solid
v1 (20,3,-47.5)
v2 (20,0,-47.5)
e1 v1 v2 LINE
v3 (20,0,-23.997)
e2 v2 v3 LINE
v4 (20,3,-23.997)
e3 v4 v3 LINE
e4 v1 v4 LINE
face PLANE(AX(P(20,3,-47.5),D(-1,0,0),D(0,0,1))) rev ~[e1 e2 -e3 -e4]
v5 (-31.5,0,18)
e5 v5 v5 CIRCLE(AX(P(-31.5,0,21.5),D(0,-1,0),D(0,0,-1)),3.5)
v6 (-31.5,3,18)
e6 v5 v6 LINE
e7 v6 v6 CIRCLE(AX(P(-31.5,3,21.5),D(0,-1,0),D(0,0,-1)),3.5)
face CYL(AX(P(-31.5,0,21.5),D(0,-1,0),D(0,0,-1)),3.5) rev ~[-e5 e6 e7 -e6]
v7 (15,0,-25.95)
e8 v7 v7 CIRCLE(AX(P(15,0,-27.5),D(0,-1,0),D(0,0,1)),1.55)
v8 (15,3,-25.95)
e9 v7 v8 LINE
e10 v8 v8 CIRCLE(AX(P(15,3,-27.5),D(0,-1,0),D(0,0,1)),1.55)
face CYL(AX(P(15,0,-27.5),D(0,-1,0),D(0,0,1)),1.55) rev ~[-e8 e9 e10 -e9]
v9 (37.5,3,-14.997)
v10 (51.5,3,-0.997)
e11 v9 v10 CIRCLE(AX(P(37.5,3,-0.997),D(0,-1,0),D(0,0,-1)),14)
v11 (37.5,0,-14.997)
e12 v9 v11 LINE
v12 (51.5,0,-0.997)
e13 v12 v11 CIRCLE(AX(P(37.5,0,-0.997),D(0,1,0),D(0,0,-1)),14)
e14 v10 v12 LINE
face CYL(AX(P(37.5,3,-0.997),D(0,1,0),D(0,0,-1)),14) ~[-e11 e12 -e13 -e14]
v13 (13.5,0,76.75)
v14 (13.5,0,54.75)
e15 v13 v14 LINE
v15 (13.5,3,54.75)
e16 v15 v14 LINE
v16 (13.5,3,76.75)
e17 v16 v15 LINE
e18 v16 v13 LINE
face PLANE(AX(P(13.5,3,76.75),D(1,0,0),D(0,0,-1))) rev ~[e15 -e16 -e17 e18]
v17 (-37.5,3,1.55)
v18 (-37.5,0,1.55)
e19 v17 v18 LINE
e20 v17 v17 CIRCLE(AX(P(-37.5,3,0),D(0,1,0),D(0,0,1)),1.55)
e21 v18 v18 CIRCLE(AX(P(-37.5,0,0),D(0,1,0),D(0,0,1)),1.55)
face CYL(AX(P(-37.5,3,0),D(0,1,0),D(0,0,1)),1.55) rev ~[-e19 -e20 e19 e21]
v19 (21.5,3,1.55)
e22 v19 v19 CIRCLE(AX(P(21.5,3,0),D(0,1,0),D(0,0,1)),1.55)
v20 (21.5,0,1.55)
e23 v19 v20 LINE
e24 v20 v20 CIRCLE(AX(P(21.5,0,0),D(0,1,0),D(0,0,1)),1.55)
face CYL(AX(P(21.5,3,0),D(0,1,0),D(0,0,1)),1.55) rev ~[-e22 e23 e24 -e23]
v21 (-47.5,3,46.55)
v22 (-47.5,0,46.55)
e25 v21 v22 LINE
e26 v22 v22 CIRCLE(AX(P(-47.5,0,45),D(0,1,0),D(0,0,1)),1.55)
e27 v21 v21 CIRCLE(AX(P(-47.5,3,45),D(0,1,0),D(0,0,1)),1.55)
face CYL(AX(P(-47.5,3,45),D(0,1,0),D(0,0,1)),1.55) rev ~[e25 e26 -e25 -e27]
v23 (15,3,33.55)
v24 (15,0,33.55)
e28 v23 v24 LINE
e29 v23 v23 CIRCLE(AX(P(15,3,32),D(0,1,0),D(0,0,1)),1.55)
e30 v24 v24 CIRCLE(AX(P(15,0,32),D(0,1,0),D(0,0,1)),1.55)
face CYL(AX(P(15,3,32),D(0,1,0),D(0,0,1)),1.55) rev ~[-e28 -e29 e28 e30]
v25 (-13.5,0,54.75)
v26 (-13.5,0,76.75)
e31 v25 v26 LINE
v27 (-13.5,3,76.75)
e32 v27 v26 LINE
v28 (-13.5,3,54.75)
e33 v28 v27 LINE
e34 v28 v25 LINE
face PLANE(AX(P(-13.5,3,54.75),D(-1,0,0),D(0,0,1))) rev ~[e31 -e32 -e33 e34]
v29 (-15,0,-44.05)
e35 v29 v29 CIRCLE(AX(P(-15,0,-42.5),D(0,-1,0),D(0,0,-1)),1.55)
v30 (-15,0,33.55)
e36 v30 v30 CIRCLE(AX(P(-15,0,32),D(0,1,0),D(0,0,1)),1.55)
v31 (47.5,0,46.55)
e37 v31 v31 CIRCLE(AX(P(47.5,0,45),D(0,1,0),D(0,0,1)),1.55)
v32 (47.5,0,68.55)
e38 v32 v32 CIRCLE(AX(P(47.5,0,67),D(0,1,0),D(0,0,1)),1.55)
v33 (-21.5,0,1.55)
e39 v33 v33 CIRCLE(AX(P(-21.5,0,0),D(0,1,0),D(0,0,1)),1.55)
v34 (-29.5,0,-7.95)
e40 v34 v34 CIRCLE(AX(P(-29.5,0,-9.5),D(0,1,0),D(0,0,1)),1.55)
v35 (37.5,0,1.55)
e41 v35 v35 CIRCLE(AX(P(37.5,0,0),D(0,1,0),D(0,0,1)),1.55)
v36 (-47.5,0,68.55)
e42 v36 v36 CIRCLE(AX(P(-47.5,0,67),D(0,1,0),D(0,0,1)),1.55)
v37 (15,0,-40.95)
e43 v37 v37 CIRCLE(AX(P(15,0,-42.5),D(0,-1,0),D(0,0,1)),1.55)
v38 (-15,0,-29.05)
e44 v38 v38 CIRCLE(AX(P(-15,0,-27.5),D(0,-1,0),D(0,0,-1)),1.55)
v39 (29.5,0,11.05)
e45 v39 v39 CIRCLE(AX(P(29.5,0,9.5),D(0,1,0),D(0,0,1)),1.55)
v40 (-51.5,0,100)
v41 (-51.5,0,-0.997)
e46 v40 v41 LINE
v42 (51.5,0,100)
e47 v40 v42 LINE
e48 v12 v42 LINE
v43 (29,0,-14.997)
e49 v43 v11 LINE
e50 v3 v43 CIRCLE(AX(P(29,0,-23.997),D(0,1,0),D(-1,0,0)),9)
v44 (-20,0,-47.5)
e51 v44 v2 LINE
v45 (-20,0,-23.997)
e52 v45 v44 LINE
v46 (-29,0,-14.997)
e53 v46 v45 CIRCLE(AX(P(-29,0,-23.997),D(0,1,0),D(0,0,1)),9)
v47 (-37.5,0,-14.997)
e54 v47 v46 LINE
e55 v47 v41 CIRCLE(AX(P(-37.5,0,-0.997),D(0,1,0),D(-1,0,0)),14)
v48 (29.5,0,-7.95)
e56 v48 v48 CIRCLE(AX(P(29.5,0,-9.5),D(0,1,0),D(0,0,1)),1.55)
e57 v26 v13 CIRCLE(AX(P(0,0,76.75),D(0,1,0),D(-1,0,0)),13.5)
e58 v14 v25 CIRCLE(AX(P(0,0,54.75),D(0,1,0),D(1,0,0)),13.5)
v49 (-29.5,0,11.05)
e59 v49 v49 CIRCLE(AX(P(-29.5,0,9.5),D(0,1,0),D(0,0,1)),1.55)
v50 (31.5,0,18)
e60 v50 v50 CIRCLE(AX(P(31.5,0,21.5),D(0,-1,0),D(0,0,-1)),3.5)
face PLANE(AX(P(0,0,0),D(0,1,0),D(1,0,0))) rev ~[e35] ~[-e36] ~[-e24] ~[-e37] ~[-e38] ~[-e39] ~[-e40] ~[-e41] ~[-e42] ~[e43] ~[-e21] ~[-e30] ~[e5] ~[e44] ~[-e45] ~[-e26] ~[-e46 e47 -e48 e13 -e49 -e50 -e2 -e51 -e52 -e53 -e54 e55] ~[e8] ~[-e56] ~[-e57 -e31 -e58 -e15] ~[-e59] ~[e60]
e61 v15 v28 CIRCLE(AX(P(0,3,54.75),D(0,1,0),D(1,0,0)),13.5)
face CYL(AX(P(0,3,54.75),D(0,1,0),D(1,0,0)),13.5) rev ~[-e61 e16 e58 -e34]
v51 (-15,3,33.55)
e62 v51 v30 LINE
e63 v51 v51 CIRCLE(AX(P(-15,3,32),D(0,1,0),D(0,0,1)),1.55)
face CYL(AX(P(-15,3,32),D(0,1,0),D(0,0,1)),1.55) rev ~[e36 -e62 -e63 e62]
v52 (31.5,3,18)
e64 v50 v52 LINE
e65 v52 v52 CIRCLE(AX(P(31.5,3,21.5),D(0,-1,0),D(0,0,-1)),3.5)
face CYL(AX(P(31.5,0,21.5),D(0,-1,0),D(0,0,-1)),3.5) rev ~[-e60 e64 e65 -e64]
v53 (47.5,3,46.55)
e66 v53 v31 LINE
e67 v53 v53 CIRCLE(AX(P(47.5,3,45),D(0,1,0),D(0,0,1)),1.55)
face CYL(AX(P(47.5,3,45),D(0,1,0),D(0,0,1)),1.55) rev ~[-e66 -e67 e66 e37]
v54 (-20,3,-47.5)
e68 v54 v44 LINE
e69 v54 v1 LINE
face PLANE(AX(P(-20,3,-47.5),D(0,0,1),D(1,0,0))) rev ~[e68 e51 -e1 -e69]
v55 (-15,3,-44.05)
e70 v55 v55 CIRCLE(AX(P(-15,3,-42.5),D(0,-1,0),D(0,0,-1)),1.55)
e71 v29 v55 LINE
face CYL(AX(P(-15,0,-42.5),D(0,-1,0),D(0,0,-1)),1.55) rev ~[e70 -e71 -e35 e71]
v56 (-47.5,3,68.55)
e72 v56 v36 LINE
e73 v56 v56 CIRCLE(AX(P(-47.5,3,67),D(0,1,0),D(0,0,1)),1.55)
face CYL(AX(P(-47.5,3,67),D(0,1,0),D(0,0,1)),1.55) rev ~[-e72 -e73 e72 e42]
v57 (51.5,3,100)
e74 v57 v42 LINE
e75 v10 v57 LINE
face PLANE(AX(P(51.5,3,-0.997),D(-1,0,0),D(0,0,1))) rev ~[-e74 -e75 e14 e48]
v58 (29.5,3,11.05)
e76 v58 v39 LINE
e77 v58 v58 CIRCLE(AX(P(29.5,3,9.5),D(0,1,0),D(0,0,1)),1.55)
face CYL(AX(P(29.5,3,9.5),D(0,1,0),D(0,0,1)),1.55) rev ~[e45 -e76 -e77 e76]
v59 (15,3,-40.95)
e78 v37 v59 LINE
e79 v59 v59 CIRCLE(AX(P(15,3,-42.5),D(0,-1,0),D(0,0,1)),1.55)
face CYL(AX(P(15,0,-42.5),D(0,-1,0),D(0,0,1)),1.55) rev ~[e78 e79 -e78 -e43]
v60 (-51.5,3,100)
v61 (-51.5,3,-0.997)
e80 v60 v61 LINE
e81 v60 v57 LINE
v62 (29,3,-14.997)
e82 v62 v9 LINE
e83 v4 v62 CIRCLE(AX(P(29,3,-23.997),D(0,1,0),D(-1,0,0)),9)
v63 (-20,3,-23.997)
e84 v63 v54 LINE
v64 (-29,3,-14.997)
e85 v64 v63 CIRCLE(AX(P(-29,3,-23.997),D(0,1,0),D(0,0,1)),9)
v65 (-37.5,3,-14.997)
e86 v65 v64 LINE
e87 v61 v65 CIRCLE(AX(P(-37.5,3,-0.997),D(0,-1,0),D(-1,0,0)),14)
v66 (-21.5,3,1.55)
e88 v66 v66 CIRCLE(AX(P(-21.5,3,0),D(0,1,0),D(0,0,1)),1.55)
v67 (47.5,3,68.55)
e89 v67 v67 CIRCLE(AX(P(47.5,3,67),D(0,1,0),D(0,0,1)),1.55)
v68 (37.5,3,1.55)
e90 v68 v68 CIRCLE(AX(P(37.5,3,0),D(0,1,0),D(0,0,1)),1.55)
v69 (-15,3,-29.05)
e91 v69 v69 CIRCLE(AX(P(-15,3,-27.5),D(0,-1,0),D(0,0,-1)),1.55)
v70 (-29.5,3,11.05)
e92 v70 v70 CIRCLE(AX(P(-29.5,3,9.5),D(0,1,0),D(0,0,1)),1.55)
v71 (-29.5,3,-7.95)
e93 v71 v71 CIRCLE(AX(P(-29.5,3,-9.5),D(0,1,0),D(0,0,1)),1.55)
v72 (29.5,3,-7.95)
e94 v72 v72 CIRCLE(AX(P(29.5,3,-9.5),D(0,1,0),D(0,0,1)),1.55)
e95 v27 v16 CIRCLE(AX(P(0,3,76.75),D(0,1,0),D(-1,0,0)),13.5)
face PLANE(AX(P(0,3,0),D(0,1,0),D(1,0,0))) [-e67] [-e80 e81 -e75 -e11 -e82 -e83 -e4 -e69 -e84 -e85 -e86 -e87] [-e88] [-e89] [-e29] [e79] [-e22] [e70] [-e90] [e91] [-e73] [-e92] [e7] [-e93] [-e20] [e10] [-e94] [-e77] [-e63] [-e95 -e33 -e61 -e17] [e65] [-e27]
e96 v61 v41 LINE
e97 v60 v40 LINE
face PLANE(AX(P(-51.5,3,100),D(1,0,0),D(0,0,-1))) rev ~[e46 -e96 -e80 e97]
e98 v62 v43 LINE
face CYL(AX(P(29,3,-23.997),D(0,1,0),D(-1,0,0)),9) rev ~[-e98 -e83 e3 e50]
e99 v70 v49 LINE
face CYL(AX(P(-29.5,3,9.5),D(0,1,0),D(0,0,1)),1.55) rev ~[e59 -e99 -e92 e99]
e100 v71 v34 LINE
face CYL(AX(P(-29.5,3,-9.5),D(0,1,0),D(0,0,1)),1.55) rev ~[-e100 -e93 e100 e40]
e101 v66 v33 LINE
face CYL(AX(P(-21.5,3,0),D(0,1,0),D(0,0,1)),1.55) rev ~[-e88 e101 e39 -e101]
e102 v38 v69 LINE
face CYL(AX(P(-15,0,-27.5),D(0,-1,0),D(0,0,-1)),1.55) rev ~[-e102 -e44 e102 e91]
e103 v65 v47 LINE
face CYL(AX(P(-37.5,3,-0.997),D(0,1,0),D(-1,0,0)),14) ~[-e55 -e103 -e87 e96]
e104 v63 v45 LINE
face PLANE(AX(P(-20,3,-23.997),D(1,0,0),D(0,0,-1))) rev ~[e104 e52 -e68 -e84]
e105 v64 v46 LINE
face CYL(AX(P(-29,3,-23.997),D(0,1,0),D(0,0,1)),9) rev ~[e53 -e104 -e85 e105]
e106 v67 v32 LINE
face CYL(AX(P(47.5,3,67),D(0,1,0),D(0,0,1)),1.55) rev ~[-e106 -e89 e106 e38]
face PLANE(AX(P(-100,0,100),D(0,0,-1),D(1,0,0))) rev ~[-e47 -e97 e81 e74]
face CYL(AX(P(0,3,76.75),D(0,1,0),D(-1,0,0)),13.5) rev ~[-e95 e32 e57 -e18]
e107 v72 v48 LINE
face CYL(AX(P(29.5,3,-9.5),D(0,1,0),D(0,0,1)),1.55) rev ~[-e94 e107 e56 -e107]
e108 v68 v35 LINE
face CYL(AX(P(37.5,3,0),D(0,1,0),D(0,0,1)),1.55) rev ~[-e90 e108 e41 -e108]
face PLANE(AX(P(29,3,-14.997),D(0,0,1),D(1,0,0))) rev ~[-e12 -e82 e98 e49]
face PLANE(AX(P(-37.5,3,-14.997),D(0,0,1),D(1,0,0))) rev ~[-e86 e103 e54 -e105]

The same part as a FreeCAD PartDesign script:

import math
import FreeCAD as App
import Part
import Sketcher

V = App.Vector
Q = App.Units.Quantity


def add_polygon(sketch, points):
    """Adds a closed chain of lines whose ends are joined by coincident constraints."""
    first, n = sketch.GeometryCount, len(points)
    for a, b in zip(points, points[1:] + points[:1]):
        sketch.addGeometry(Part.LineSegment(App.Vector(*a, 0), App.Vector(*b, 0)), False)
    for i in range(n):
        sketch.addConstraint(Sketcher.Constraint("Coincident", first + i, 2, first + (i + 1) % n, 1))

doc = App.newDocument("Part")
params = doc.addObject("Spreadsheet::Sheet", "Params")
for row, (alias, value) in enumerate([
    ("sketch1_width", "200 mm"),
    ("pad1_length", "3 mm"),
    ("sketch2_diameter", "3.1 mm"),
    ("pocket1_length", "10 mm"),
    ("sketch3_radius", "14 mm"),
    ("sketch3_radius2", "9 mm"),
    ("sketch3_width", "40 mm"),
    ("sketch3_width2", "200 mm"),
    ("sketch3_width3", "8.5 mm"),
    ("pocket2_length", "10 mm"),
    ("sketch4_diameter", "3.1 mm"),
    ("pocket3_length", "10 mm"),
    ("sketch5_diameter", "3.1 mm"),
    ("sketch6_radius", "13.5 mm"),
    ("sketch6_height", "22 mm"),
    ("pocket5_length", "10 mm"),
    ("sketch7_diameter", "7 mm"),
    ("sketch8_diameter", "7 mm"),
], start=1):
    params.set(f"A{row}", alias)
    params.set(f"B{row}", "=" + value)
    params.setAlias(f"B{row}", alias)

body = doc.addObject("PartDesign::Body", "Body")

# Sketch on XZ plane
sketch1 = body.newObject("Sketcher::SketchObject", "Sketch")
sketch1.AttachmentSupport = (doc.getObject("XZ_Plane"), [""])
sketch1.MapMode = "FlatFace"
add_polygon(sketch1, [(-100, -100), (-100, 100), (100, 100), (100, -100)])  # lines 0-3
sketch1.addConstraint([
    Sketcher.Constraint("Vertical", 0),
    Sketcher.Constraint("Horizontal", 1),
    Sketcher.Constraint("Vertical", 2),
    Sketcher.Constraint("Horizontal", 3),
    Sketcher.Constraint("Symmetric", 0, 2, 2, 2, -1, 1),
    Sketcher.Constraint("Equal", 3, 0),
    Sketcher.Constraint("DistanceX", 1, 1, 1, 2, Q("200 mm")),
])
sketch1.setExpression("Constraints[10]", "Params.sketch1_width")
pad1 = body.newObject("PartDesign::Pad", "Pad")
pad1.Profile = sketch1
pad1.setExpression("Length", "Params.pad1_length")
pad1.Reversed = True

# Sketch on XZ plane
sketch2 = body.newObject("Sketcher::SketchObject", "Sketch001")
sketch2.AttachmentSupport = (doc.getObject("XZ_Plane"), [""])
sketch2.MapMode = "FlatFace"
sketch2.AttachmentOffset = App.Placement(V(0, 0, -3), App.Rotation())
sketch2.addGeometry([
    Part.Circle(V(29.5, -9.5, 0), V(0, 0, 1), 1.6),  # 0
    Part.Circle(V(21.5, 0, 0), V(0, 0, 1), 1.6),  # 1
    Part.Circle(V(29.5, 9.5, 0), V(0, 0, 1), 1.6),  # 2
    Part.Circle(V(37.5, 0, 0), V(0, 0, 1), 1.6),  # 3
    Part.Circle(V(-29.5, 9.5, 0), V(0, 0, 1), 1.6),  # 4
    Part.Circle(V(-37.5, 0, 0), V(0, 0, 1), 1.6),  # 5
    Part.Circle(V(-21.5, 0, 0), V(0, 0, 1), 1.6),  # 6
    Part.Circle(V(-29.5, -9.5, 0), V(0, 0, 1), 1.6),  # 7
    Part.Circle(V(-15, 32, 0), V(0, 0, 1), 1.6),  # 8
    Part.Circle(V(15, 32, 0), V(0, 0, 1), 1.6),  # 9
], False)
sketch2.addConstraint([
    Sketcher.Constraint("Equal", 0, 1),
    Sketcher.Constraint("Equal", 1, 2),
    Sketcher.Constraint("Equal", 2, 3),
    Sketcher.Constraint("Equal", 3, 4),
    Sketcher.Constraint("Equal", 4, 5),
    Sketcher.Constraint("Equal", 5, 6),
    Sketcher.Constraint("Equal", 6, 7),
    Sketcher.Constraint("Equal", 7, 8),
    Sketcher.Constraint("Equal", 8, 9),
    Sketcher.Constraint("Symmetric", 0, 3, 4, 3, -1, 1),
    Sketcher.Constraint("Symmetric", 3, 3, 5, 3, -1, 1),
    Sketcher.Constraint("Symmetric", 1, 3, 6, 3, -1, 1),
    Sketcher.Constraint("Symmetric", 2, 3, 7, 3, -1, 1),
    Sketcher.Constraint("Symmetric", 2, 3, 4, 3, -2),
    Sketcher.Constraint("Symmetric", 8, 3, 9, 3, -2),
    Sketcher.Constraint("PointOnObject", 1, 3, -1),
    Sketcher.Constraint("PointOnObject", 3, 3, -1),
    Sketcher.Constraint("Diameter", 0, Q("3.1 mm")),
    Sketcher.Constraint("DistanceX", 8, 3, -1, 1, Q("15 mm")),
    Sketcher.Constraint("DistanceY", -1, 1, 8, 3, Q("32 mm")),
    Sketcher.Constraint("DistanceX", 1, 3, 0, 3, Q("8 mm")),
    Sketcher.Constraint("DistanceY", 0, 3, 2, 3, Q("19 mm")),
    Sketcher.Constraint("DistanceX", 0, 3, 3, 3, Q("8 mm")),
    Sketcher.Constraint("DistanceX", 4, 3, 1, 3, Q("51 mm")),
])
sketch2.setExpression("Constraints[17]", "Params.sketch2_diameter")
pocket1 = body.newObject("PartDesign::Pocket", "Pocket")
pocket1.Profile = sketch2
pocket1.setExpression("Length", "Params.pocket1_length")
pocket1.Reversed = True

# Sketch on XZ plane
sketch3 = body.newObject("Sketcher::SketchObject", "Sketch002")
sketch3.AttachmentSupport = (doc.getObject("XZ_Plane"), [""])
sketch3.MapMode = "FlatFace"
sketch3.AttachmentOffset = App.Placement(V(0, 0, -3), App.Rotation())
sketch3.addGeometry([
    Part.LineSegment(V(-52, 100, 0), V(-52, -1, 0)),  # 0
    Part.ArcOfCircle(Part.Circle(V(-38, -1, 0), V(0, 0, 1), 14), math.radians(180), math.radians(270)),  # 1
    Part.LineSegment(V(-38, -15, 0), V(-29, -15, 0)),  # 2
    Part.ArcOfCircle(Part.Circle(V(-29, -24, 0), V(0, 0, 1), 9), math.radians(0), math.radians(90)),  # 3
    Part.LineSegment(V(-20, -24, 0), V(-20, -48, 0)),  # 4
    Part.LineSegment(V(-20, -48, 0), V(20, -48, 0)),  # 5
    Part.LineSegment(V(20, -48, 0), V(20, -24, 0)),  # 6
    Part.ArcOfCircle(Part.Circle(V(29, -24, 0), V(0, 0, 1), 9), math.radians(90), math.radians(180)),  # 7
    Part.LineSegment(V(29, -15, 0), V(38, -15, 0)),  # 8
    Part.ArcOfCircle(Part.Circle(V(38, -1, 0), V(0, 0, 1), 14), math.radians(-90), math.radians(0)),  # 9
    Part.LineSegment(V(52, -1, 0), V(52, 100, 0)),  # 10
    Part.LineSegment(V(52, 100, 0), V(100, 100, 0)),  # 11
    Part.LineSegment(V(100, 100, 0), V(100, -100, 0)),  # 12
    Part.LineSegment(V(100, -100, 0), V(-100, -100, 0)),  # 13
    Part.LineSegment(V(-100, -100, 0), V(-100, 100, 0)),  # 14
    Part.LineSegment(V(-100, 100, 0), V(-52, 100, 0)),  # 15
], False)
sketch3.addConstraint([
    Sketcher.Constraint("Tangent", 0, 2, 1, 1),
    Sketcher.Constraint("Tangent", 1, 2, 2, 1),
    Sketcher.Constraint("Tangent", 2, 2, 3, 2),
    Sketcher.Constraint("Tangent", 3, 1, 4, 1),
    Sketcher.Constraint("Coincident", 4, 2, 5, 1),
    Sketcher.Constraint("Coincident", 5, 2, 6, 1),
    Sketcher.Constraint("Tangent", 6, 2, 7, 2),
    Sketcher.Constraint("Tangent", 7, 1, 8, 1),
    Sketcher.Constraint("Tangent", 8, 2, 9, 1),
    Sketcher.Constraint("Tangent", 9, 2, 10, 1),
    Sketcher.Constraint("Coincident", 10, 2, 11, 1),
    Sketcher.Constraint("Coincident", 11, 2, 12, 1),
    Sketcher.Constraint("Coincident", 12, 2, 13, 1),
    Sketcher.Constraint("Coincident", 13, 2, 14, 1),
    Sketcher.Constraint("Coincident", 14, 2, 15, 1),
    Sketcher.Constraint("Coincident", 15, 2, 0, 1),
    Sketcher.Constraint("Vertical", 0),
    Sketcher.Constraint("Horizontal", 2),
    Sketcher.Constraint("Vertical", 4),
    Sketcher.Constraint("Horizontal", 5),
    Sketcher.Constraint("Vertical", 6),
    Sketcher.Constraint("Horizontal", 8),
    Sketcher.Constraint("Vertical", 10),
    Sketcher.Constraint("Horizontal", 11),
    Sketcher.Constraint("Vertical", 12),
    Sketcher.Constraint("Horizontal", 13),
    Sketcher.Constraint("Vertical", 14),
    Sketcher.Constraint("Horizontal", 15),
    Sketcher.Constraint("Equal", 3, 7),
    Sketcher.Constraint("Equal", 1, 9),
    Sketcher.Constraint("Symmetric", 11, 2, 13, 2, -1, 1),
    Sketcher.Constraint("Symmetric", 3, 3, 7, 3, -2),
    Sketcher.Constraint("Symmetric", 10, 2, 15, 2, -2),
    Sketcher.Constraint("Equal", 13, 12),
    Sketcher.Constraint("Radius", 1, Q("14 mm")),
    Sketcher.Constraint("Radius", 3, Q("9 mm")),
    Sketcher.Constraint("DistanceX", 5, 1, 5, 2, Q("40 mm")),
    Sketcher.Constraint("DistanceX", 13, 2, 13, 1, Q("200 mm")),
    Sketcher.Constraint("DistanceX", 2, 1, 2, 2, Q("8.5 mm")),
    Sketcher.Constraint("DistanceY", 4, 2, -1, 1, Q("47.5 mm")),
    Sketcher.Constraint("DistanceY", 0, 2, 0, 1, Q("100.997 mm")),
])
sketch3.setExpression("Constraints[34]", "Params.sketch3_radius")
sketch3.setExpression("Constraints[35]", "Params.sketch3_radius2")
sketch3.setExpression("Constraints[36]", "Params.sketch3_width")
sketch3.setExpression("Constraints[37]", "Params.sketch3_width2")
sketch3.setExpression("Constraints[38]", "Params.sketch3_width3")
pocket2 = body.newObject("PartDesign::Pocket", "Pocket001")
pocket2.Profile = sketch3
pocket2.setExpression("Length", "Params.pocket2_length")
pocket2.Reversed = True

# Sketch on XZ plane
sketch4 = body.newObject("Sketcher::SketchObject", "Sketch003")
sketch4.AttachmentSupport = (doc.getObject("XZ_Plane"), [""])
sketch4.MapMode = "FlatFace"
sketch4.addGeometry([
    Part.Circle(V(-15, -42.5, 0), V(0, 0, 1), 1.6),
    Part.Circle(V(-15, -27.5, 0), V(0, 0, 1), 1.6),
    Part.Circle(V(15, -27.5, 0), V(0, 0, 1), 1.6),
    Part.Circle(V(15, -42.5, 0), V(0, 0, 1), 1.6),
], False)
sketch4.addConstraint([
    Sketcher.Constraint("Equal", 0, 1),
    Sketcher.Constraint("Equal", 1, 2),
    Sketcher.Constraint("Equal", 2, 3),
    Sketcher.Constraint("Symmetric", 1, 3, 2, 3, -2),
    Sketcher.Constraint("Symmetric", 0, 3, 3, 3, -2),
    Sketcher.Constraint("Vertical", 0, 3, 1, 3),
    Sketcher.Constraint("Diameter", 0, Q("3.1 mm")),
    Sketcher.Constraint("DistanceX", 0, 3, -1, 1, Q("15 mm")),
    Sketcher.Constraint("DistanceY", 0, 3, 1, 3, Q("15 mm")),
    Sketcher.Constraint("DistanceY", 0, 3, -1, 1, Q("42.5 mm")),
])
sketch4.setExpression("Constraints[6]", "Params.sketch4_diameter")
pocket3 = body.newObject("PartDesign::Pocket", "Pocket002")
pocket3.Profile = sketch4
pocket3.setExpression("Length", "Params.pocket3_length")

# Sketch on XZ plane
sketch5 = body.newObject("Sketcher::SketchObject", "Sketch004")
sketch5.AttachmentSupport = (doc.getObject("XZ_Plane"), [""])
sketch5.MapMode = "FlatFace"
sketch5.AttachmentOffset = App.Placement(V(0, 0, -3), App.Rotation())
sketch5.addGeometry([
    Part.Circle(V(-47.5, 45, 0), V(0, 0, 1), 1.6),
    Part.Circle(V(-47.5, 67, 0), V(0, 0, 1), 1.6),
    Part.Circle(V(47.5, 45, 0), V(0, 0, 1), 1.6),
    Part.Circle(V(47.5, 67, 0), V(0, 0, 1), 1.6),
], False)
sketch5.addConstraint([
    Sketcher.Constraint("Equal", 0, 1),
    Sketcher.Constraint("Equal", 1, 2),
    Sketcher.Constraint("Equal", 2, 3),
    Sketcher.Constraint("Symmetric", 0, 3, 2, 3, -2),
    Sketcher.Constraint("Symmetric", 1, 3, 3, 3, -2),
    Sketcher.Constraint("Vertical", 0, 3, 1, 3),
    Sketcher.Constraint("Diameter", 0, Q("3.1 mm")),
    Sketcher.Constraint("DistanceY", -1, 1, 0, 3, Q("45 mm")),
    Sketcher.Constraint("DistanceY", -1, 1, 1, 3, Q("67 mm")),
    Sketcher.Constraint("DistanceX", 0, 3, 2, 3, Q("95 mm")),
])
sketch5.setExpression("Constraints[6]", "Params.sketch5_diameter")
pocket4 = body.newObject("PartDesign::Pocket", "Pocket003")
pocket4.Profile = sketch5
pocket4.Type = "ThroughAll"
pocket4.Reversed = True

# Sketch on XZ plane
sketch6 = body.newObject("Sketcher::SketchObject", "Sketch005")
sketch6.AttachmentSupport = (doc.getObject("XZ_Plane"), [""])
sketch6.MapMode = "FlatFace"
sketch6.AttachmentOffset = App.Placement(V(0, 0, -3), App.Rotation())
sketch6.addGeometry([
    Part.LineSegment(V(-14, 55, 0), V(-14, 77, 0)),
    Part.ArcOfCircle(Part.Circle(V(0, 77, 0), V(0, 0, 1), 14), math.radians(0), math.radians(180)),
    Part.LineSegment(V(14, 77, 0), V(14, 55, 0)),
    Part.ArcOfCircle(Part.Circle(V(0, 55, 0), V(0, 0, 1), 14), math.radians(180), math.radians(360)),
], False)
sketch6.addConstraint([
    Sketcher.Constraint("Tangent", 0, 2, 1, 2),
    Sketcher.Constraint("Tangent", 1, 1, 2, 1),
    Sketcher.Constraint("Tangent", 2, 2, 3, 2),
    Sketcher.Constraint("Tangent", 3, 1, 0, 1),
    Sketcher.Constraint("Vertical", 0),
    Sketcher.Constraint("Vertical", 2),
    Sketcher.Constraint("PointOnObject", 1, 3, -2),
    Sketcher.Constraint("Radius", 1, Q("13.5 mm")),
    Sketcher.Constraint("DistanceY", 0, 1, 0, 2, Q("22 mm")),
    Sketcher.Constraint("DistanceY", -1, 1, 1, 3, Q("76.75 mm")),
])
sketch6.setExpression("Constraints[7]", "Params.sketch6_radius")
sketch6.setExpression("Constraints[8]", "Params.sketch6_height")
pocket5 = body.newObject("PartDesign::Pocket", "Pocket004")
pocket5.Profile = sketch6
pocket5.setExpression("Length", "Params.pocket5_length")
pocket5.Reversed = True

# Sketch on XZ plane
sketch7 = body.newObject("Sketcher::SketchObject", "Sketch006")
sketch7.AttachmentSupport = (doc.getObject("XZ_Plane"), [""])
sketch7.MapMode = "FlatFace"
sketch7.addGeometry(Part.Circle(V(-31.5, 21.5, 0), V(0, 0, 1), 3.5), False)
sketch7.addConstraint([
    Sketcher.Constraint("Diameter", 0, Q("7 mm")),
    Sketcher.Constraint("DistanceX", 0, 3, -1, 1, Q("31.5 mm")),
    Sketcher.Constraint("DistanceY", -1, 1, 0, 3, Q("21.5 mm")),
])
sketch7.setExpression("Constraints[0]", "Params.sketch7_diameter")
pocket6 = body.newObject("PartDesign::Pocket", "Pocket005")
pocket6.Profile = sketch7
pocket6.Type = "UpToFirst"

# Sketch on XZ plane
sketch8 = body.newObject("Sketcher::SketchObject", "Sketch007")
sketch8.AttachmentSupport = (doc.getObject("XZ_Plane"), [""])
sketch8.MapMode = "FlatFace"
sketch8.addGeometry(Part.Circle(V(31.5, 21.5, 0), V(0, 0, 1), 3.5), False)
sketch8.addConstraint([
    Sketcher.Constraint("Diameter", 0, Q("7 mm")),
    Sketcher.Constraint("DistanceX", -1, 1, 0, 3, Q("31.5 mm")),
    Sketcher.Constraint("DistanceY", -1, 1, 0, 3, Q("21.5 mm")),
])
sketch8.setExpression("Constraints[0]", "Params.sketch8_diameter")
pocket7 = body.newObject("PartDesign::Pocket", "Pocket006")
pocket7.Profile = sketch8
pocket7.Type = "UpToFirst"

doc.recompute()
